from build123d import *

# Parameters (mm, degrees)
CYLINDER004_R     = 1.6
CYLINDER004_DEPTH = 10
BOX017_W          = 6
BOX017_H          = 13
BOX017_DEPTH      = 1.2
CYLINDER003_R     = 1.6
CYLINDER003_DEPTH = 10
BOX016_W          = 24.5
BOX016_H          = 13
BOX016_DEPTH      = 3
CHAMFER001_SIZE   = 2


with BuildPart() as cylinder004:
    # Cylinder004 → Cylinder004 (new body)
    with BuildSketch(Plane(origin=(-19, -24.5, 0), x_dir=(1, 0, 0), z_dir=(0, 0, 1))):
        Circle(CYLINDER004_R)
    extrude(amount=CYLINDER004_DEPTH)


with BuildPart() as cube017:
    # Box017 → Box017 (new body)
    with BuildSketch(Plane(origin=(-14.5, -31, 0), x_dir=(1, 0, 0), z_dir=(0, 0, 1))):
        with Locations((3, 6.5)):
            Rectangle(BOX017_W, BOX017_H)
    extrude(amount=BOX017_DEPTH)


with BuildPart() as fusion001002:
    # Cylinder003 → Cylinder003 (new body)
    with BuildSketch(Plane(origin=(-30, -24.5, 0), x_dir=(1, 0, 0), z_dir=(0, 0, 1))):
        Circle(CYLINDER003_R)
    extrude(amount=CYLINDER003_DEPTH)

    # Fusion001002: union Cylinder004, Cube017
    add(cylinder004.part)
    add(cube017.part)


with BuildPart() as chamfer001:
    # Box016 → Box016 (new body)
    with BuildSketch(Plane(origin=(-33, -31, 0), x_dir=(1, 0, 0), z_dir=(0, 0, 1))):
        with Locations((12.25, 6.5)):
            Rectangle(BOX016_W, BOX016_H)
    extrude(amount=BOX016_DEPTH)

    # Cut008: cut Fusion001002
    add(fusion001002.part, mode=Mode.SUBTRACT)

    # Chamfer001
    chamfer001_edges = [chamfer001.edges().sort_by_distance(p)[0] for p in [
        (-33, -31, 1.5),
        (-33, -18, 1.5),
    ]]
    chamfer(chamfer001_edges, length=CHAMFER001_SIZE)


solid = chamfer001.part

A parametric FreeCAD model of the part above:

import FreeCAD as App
import Part
import Sketcher
from FreeCAD import Vector


def edges_at(feature, points):
    """Names of the edges that pass closest to the given points."""
    edges = feature.Shape.Edges
    near = lambda p: min(range(len(edges)), key=lambda i: edges[i].distToShape(Part.Vertex(*p))[0])
    return sorted({f"Edge{near(p) + 1}" for p in points})

doc = App.newDocument("Part")
body = doc.addObject("PartDesign::Body", "Body")

# Sketch on XY plane
sketch1 = body.newObject("Sketcher::SketchObject", "Sketch")
sketch1.AttachmentSupport = (doc.getObject("XY_Plane"), [""])
sketch1.MapMode = "FlatFace"
sketch1.addGeometry(Part.Circle(Vector(-19, -24.5, 0), Vector(0, 0, 1), 1.6), False)
sketch1.addConstraint(Sketcher.Constraint("Diameter", 0, 3.2))
sketch1.addConstraint(Sketcher.Constraint("DistanceX", 0, 3, -1, 1, 19.0))
sketch1.addConstraint(Sketcher.Constraint("DistanceY", 0, 3, -1, 1, 24.5))
pad1 = body.newObject("PartDesign::Pad", "Pad")
pad1.Profile = sketch1
pad1.Length = 10
body2 = doc.addObject("PartDesign::Body", "Body001")

# Sketch on XY plane
sketch2 = body2.newObject("Sketcher::SketchObject", "Sketch001")
sketch2.AttachmentSupport = (doc.getObject("XY_Plane001"), [""])
sketch2.MapMode = "FlatFace"
sketch2.addGeometry(Part.LineSegment(Vector(-14, -18, 0), Vector(-14, -31, 0)), False)
sketch2.addGeometry(Part.LineSegment(Vector(-14, -31, 0), Vector(-8, -31, 0)), False)
sketch2.addGeometry(Part.LineSegment(Vector(-8, -31, 0), Vector(-8, -18, 0)), False)
sketch2.addGeometry(Part.LineSegment(Vector(-8, -18, 0), Vector(-14, -18, 0)), False)
sketch2.addConstraint(Sketcher.Constraint("Coincident", 0, 2, 1, 1))
sketch2.addConstraint(Sketcher.Constraint("Coincident", 1, 2, 2, 1))
sketch2.addConstraint(Sketcher.Constraint("Coincident", 2, 2, 3, 1))
sketch2.addConstraint(Sketcher.Constraint("Coincident", 3, 2, 0, 1))
sketch2.addConstraint(Sketcher.Constraint("Vertical", 0))
sketch2.addConstraint(Sketcher.Constraint("Horizontal", 1))
sketch2.addConstraint(Sketcher.Constraint("Vertical", 2))
sketch2.addConstraint(Sketcher.Constraint("Horizontal", 3))
sketch2.addConstraint(Sketcher.Constraint("DistanceX", 1, 1, 1, 2, 6.0))
sketch2.addConstraint(Sketcher.Constraint("DistanceY", 0, 2, 0, 1, 13.0))
sketch2.addConstraint(Sketcher.Constraint("DistanceY", 0, 2, -1, 1, 31.0))
sketch2.addConstraint(Sketcher.Constraint("DistanceX", 0, 2, -1, 1, 14.5))
pad2 = body2.newObject("PartDesign::Pad", "Pad001")
pad2.Profile = sketch2
pad2.Length = 1.2
body3 = doc.addObject("PartDesign::Body", "Body002")
body3.AllowCompound = True

# Sketch on XY plane
sketch3 = body3.newObject("Sketcher::SketchObject", "Sketch002")
sketch3.AttachmentSupport = (doc.getObject("XY_Plane002"), [""])
sketch3.MapMode = "FlatFace"
sketch3.addGeometry(Part.Circle(Vector(-30, -24.5, 0), Vector(0, 0, 1), 1.6), False)
sketch3.addConstraint(Sketcher.Constraint("Diameter", 0, 3.2))
sketch3.addConstraint(Sketcher.Constraint("DistanceX", 0, 3, -1, 1, 30.0))
sketch3.addConstraint(Sketcher.Constraint("DistanceY", 0, 3, -1, 1, 24.5))
pad3 = body3.newObject("PartDesign::Pad", "Pad002")
pad3.Profile = sketch3
pad3.Length = 10
doc.recompute()

boolean = body3.newObject("PartDesign::Boolean", "Boolean")
boolean.Type = "Fuse"
boolean.addObjects([body])
doc.recompute()

boolean2 = body3.newObject("PartDesign::Boolean", "Boolean001")
boolean2.Type = "Fuse"
boolean2.addObjects([body2])
body4 = doc.addObject("PartDesign::Body", "Body003")

# Sketch on XY plane
sketch4 = body4.newObject("Sketcher::SketchObject", "Sketch003")
sketch4.AttachmentSupport = (doc.getObject("XY_Plane003"), [""])
sketch4.MapMode = "FlatFace"
sketch4.addGeometry(Part.LineSegment(Vector(-33, -18, 0), Vector(-33, -31, 0)), False)
sketch4.addGeometry(Part.LineSegment(Vector(-33, -31, 0), Vector(-8, -31, 0)), False)
sketch4.addGeometry(Part.LineSegment(Vector(-8, -31, 0), Vector(-8, -18, 0)), False)
sketch4.addGeometry(Part.LineSegment(Vector(-8, -18, 0), Vector(-33, -18, 0)), False)
sketch4.addConstraint(Sketcher.Constraint("Coincident", 0, 2, 1, 1))
sketch4.addConstraint(Sketcher.Constraint("Coincident", 1, 2, 2, 1))
sketch4.addConstraint(Sketcher.Constraint("Coincident", 2, 2, 3, 1))
sketch4.addConstraint(Sketcher.Constraint("Coincident", 3, 2, 0, 1))
sketch4.addConstraint(Sketcher.Constraint("Vertical", 0))
sketch4.addConstraint(Sketcher.Constraint("Horizontal", 1))
sketch4.addConstraint(Sketcher.Constraint("Vertical", 2))
sketch4.addConstraint(Sketcher.Constraint("Horizontal", 3))
sketch4.addConstraint(Sketcher.Constraint("DistanceY", 0, 2, 0, 1, 13.0))
sketch4.addConstraint(Sketcher.Constraint("DistanceX", 1, 1, 1, 2, 24.5))
sketch4.addConstraint(Sketcher.Constraint("DistanceX", 0, 2, -1, 1, 33.0))
sketch4.addConstraint(Sketcher.Constraint("DistanceY", 0, 2, -1, 1, 31.0))
pad4 = body4.newObject("PartDesign::Pad", "Pad003")
pad4.Profile = sketch4
pad4.Length = 3
doc.recompute()

boolean3 = body4.newObject("PartDesign::Boolean", "Boolean002")
boolean3.Type = "Cut"
boolean3.addObjects([body3])
doc.recompute()

chamfer = body4.newObject("PartDesign::Chamfer", "Chamfer")
chamfer.Base = (boolean3, edges_at(boolean3, [(-33, -31, 1.5), (-33, -18, 1.5)]))
chamfer.Size = 2

doc.recompute()
